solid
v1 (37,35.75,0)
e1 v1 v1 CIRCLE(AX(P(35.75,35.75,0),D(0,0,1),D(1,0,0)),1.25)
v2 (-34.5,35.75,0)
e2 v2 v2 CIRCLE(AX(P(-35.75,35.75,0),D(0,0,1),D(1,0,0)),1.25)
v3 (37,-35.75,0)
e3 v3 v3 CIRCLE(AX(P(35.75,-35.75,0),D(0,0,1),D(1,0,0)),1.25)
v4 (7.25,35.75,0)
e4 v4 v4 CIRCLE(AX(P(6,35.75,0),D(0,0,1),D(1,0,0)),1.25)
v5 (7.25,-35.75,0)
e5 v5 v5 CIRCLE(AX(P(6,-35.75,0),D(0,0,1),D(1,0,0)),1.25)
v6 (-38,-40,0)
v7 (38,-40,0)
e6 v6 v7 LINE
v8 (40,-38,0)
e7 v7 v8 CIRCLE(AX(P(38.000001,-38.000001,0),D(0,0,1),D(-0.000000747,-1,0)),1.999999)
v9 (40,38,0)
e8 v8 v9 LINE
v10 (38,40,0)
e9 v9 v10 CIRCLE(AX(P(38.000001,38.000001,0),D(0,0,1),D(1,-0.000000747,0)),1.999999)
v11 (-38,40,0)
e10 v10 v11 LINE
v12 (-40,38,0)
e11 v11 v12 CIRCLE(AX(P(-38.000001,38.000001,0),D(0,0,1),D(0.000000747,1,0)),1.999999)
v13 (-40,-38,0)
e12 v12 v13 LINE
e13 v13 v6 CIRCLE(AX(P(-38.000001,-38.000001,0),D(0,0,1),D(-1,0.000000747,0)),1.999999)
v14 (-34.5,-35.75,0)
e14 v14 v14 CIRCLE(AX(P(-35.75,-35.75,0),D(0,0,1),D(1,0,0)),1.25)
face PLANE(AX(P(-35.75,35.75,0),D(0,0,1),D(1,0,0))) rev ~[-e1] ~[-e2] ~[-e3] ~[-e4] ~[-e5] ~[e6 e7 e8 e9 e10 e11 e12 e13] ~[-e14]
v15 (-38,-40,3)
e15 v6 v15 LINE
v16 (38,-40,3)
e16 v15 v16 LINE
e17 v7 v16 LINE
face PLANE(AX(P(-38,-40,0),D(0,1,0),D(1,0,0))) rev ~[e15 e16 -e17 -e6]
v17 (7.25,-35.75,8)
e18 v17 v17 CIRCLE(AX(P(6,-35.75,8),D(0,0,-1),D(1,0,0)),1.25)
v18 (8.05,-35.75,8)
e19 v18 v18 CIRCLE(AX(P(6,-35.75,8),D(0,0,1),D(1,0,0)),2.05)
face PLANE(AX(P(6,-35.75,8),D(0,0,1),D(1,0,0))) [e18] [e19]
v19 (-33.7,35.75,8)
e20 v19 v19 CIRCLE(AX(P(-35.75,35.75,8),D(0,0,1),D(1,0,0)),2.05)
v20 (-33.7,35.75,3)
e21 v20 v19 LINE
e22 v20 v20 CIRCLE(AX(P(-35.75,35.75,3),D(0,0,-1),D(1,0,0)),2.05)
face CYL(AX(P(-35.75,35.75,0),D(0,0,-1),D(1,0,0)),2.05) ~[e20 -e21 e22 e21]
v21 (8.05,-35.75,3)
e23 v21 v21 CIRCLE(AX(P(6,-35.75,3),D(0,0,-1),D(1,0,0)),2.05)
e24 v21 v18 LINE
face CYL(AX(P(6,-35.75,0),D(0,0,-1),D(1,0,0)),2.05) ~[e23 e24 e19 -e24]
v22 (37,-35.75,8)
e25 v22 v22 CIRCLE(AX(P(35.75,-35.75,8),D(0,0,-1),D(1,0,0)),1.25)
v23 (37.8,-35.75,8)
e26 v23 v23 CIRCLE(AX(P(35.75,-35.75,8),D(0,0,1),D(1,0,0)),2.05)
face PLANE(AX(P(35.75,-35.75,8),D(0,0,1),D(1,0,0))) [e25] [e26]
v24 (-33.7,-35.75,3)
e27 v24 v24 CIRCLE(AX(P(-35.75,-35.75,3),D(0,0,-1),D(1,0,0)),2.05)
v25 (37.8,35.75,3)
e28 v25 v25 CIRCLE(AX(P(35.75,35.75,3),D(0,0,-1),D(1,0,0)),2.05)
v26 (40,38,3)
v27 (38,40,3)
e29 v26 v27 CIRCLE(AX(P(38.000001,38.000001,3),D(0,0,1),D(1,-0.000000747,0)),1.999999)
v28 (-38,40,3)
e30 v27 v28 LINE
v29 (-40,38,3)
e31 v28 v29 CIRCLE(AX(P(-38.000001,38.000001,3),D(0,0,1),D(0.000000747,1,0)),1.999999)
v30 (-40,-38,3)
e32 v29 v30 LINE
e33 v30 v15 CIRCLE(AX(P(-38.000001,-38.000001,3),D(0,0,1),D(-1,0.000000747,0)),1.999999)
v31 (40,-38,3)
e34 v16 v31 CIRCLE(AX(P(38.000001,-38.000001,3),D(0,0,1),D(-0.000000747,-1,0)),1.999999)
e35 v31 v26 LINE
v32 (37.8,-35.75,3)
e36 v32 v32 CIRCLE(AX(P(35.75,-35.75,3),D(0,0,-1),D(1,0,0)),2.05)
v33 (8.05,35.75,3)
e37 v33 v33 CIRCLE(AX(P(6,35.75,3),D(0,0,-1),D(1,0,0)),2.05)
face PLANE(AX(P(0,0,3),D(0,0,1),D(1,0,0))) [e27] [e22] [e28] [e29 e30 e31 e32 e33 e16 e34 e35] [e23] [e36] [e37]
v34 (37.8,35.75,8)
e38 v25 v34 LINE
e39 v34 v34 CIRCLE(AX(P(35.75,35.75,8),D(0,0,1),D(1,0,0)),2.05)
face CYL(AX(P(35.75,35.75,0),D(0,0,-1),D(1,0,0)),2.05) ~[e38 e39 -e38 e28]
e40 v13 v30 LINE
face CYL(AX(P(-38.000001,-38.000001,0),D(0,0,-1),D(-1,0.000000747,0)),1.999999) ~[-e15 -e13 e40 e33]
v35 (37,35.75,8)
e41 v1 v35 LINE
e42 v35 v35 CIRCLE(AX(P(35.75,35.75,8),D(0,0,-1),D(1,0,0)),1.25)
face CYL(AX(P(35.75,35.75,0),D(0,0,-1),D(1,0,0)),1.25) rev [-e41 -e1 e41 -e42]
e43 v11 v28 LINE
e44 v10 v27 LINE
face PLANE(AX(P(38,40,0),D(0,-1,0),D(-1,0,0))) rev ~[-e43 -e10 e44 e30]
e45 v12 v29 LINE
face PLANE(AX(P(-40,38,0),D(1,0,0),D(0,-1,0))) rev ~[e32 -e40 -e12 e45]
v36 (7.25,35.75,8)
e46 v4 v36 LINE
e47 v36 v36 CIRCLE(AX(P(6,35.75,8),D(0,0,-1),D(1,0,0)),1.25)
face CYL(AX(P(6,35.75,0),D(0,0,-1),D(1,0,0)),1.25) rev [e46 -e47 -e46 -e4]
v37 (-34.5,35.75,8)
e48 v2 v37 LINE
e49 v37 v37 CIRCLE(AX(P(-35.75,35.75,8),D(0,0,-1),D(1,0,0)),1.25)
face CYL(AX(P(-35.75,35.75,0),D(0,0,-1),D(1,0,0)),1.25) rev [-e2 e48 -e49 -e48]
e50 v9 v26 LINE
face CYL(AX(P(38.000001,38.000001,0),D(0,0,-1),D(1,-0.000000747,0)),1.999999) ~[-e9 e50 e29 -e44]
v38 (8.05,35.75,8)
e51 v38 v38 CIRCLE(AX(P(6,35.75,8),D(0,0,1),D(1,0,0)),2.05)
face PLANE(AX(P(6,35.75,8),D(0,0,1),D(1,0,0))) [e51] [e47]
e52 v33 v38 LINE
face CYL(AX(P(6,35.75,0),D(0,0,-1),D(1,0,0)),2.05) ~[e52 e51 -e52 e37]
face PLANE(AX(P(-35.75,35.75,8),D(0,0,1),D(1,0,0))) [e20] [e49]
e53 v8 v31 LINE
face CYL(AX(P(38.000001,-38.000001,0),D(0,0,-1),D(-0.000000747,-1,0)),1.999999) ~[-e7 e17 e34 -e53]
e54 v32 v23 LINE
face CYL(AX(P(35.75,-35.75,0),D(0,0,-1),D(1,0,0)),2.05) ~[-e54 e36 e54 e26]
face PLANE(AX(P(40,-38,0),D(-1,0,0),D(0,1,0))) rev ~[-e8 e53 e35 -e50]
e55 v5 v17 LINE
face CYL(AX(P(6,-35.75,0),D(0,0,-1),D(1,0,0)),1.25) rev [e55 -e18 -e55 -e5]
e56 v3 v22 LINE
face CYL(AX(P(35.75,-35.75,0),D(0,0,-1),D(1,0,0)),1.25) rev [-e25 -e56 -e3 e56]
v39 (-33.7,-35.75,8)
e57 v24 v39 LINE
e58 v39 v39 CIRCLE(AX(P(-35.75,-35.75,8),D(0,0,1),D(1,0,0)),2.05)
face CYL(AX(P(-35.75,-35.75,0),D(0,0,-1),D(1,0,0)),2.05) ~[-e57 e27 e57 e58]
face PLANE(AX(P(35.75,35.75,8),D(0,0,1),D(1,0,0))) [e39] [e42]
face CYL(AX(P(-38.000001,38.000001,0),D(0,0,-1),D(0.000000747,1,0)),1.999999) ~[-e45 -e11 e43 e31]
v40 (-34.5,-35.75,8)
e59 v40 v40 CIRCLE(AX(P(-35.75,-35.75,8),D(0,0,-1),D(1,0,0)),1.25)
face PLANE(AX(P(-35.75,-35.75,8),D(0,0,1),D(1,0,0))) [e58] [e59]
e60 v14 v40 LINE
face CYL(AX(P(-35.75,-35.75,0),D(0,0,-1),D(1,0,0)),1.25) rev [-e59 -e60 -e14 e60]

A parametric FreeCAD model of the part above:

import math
import FreeCAD as App
import Part
import Sketcher
from FreeCAD import Vector
Q = App.Units.Quantity

doc = App.newDocument("Part")
body = doc.addObject("PartDesign::Body", "Body")

sketch1 = body.newObject("Sketcher::SketchObject", "Sketch")
sketch1.AttachmentSupport = (doc.getObject("XY_Plane"), [""])
sketch1.MapMode = "FlatFace"
sketch1.addGeometry(Part.LineSegment(Vector(38, 40, 0), Vector(-38, 40, 0)), False)
sketch1.addGeometry(Part.ArcOfCircle(Part.Circle(Vector(-38.000001, 38.000001, 0), Vector(0, 0, 1), 1.999999), math.radians(89.999957), math.radians(180.000043)), False)
sketch1.addGeometry(Part.LineSegment(Vector(-40, 38, 0), Vector(-40, -38, 0)), False)
sketch1.addGeometry(Part.ArcOfCircle(Part.Circle(Vector(-38.000001, -38.000001, 0), Vector(0, 0, 1), 1.999999), math.radians(179.999957), math.radians(270.000043)), False)
sketch1.addGeometry(Part.LineSegment(Vector(-38, -40, 0), Vector(38, -40, 0)), False)
sketch1.addGeometry(Part.ArcOfCircle(Part.Circle(Vector(38.000001, -38.000001, 0), Vector(0, 0, 1), 1.999999), math.radians(-90.000043), math.radians(0.000043)), False)
sketch1.addGeometry(Part.LineSegment(Vector(40, -38, 0), Vector(40, 38, 0)), False)
sketch1.addGeometry(Part.ArcOfCircle(Part.Circle(Vector(38.000001, 38.000001, 0), Vector(0, 0, 1), 1.999999), math.radians(-0.000043), math.radians(90.000043)), False)
sketch1.addConstraint(Sketcher.Constraint("Tangent", 0, 2, 1, 1))
sketch1.addConstraint(Sketcher.Constraint("Tangent", 1, 2, 2, 1))
sketch1.addConstraint(Sketcher.Constraint("Tangent", 2, 2, 3, 1))
sketch1.addConstraint(Sketcher.Constraint("Tangent", 3, 2, 4, 1))
sketch1.addConstraint(Sketcher.Constraint("Tangent", 4, 2, 5, 1))
sketch1.addConstraint(Sketcher.Constraint("Tangent", 5, 2, 6, 1))
sketch1.addConstraint(Sketcher.Constraint("Tangent", 6, 2, 7, 1))
sketch1.addConstraint(Sketcher.Constraint("Tangent", 7, 2, 0, 1))
sketch1.addConstraint(Sketcher.Constraint("Horizontal", 0))
sketch1.addConstraint(Sketcher.Constraint("Vertical", 2))
sketch1.addConstraint(Sketcher.Constraint("Horizontal", 4))
sketch1.addConstraint(Sketcher.Constraint("Vertical", 6))
sketch1.addConstraint(Sketcher.Constraint("Equal", 1, 3))
sketch1.addConstraint(Sketcher.Constraint("Equal", 3, 5))
sketch1.addConstraint(Sketcher.Constraint("Equal", 5, 7))
sketch1.addConstraint(Sketcher.Constraint("Symmetric", 1, 3, 5, 3, -1, 1))
sketch1.addConstraint(Sketcher.Constraint("Equal", 4, 2))
sketch1.addConstraint(Sketcher.Constraint("Radius", 1, Q("1.999999 mm")))
sketch1.addConstraint(Sketcher.Constraint("DistanceX", 0, 2, 0, 1, Q("76 mm")))
pad1 = body.newObject("PartDesign::Pad", "Pad")
pad1.Profile = sketch1
pad1.Length = 3

sketch2 = body.newObject("Sketcher::SketchObject", "Sketch001")
sketch2.AttachmentSupport = (doc.getObject("XY_Plane"), [""])
sketch2.MapMode = "FlatFace"
sketch2.addGeometry(Part.Circle(Vector(-35.75, 35.75, 0), Vector(0, 0, 1), 2.05), False)
sketch2.addGeometry(Part.Circle(Vector(6, 35.75, 0), Vector(0, 0, 1), 2.05), False)
sketch2.addGeometry(Part.Circle(Vector(35.75, 35.75, 0), Vector(0, 0, 1), 2.05), False)
sketch2.addGeometry(Part.Circle(Vector(35.75, -35.75, 0), Vector(0, 0, 1), 2.05), False)
sketch2.addGeometry(Part.Circle(Vector(6, -35.75, 0), Vector(0, 0, 1), 2.05), False)
sketch2.addGeometry(Part.Circle(Vector(-35.75, -35.75, 0), Vector(0, 0, 1), 2.05), False)
sketch2.addConstraint(Sketcher.Constraint("Equal", 0, 1))
sketch2.addConstraint(Sketcher.Constraint("Equal", 1, 2))
sketch2.addConstraint(Sketcher.Constraint("Equal", 2, 3))
sketch2.addConstraint(Sketcher.Constraint("Equal", 3, 4))
sketch2.addConstraint(Sketcher.Constraint("Equal", 4, 5))
sketch2.addConstraint(Sketcher.Constraint("Symmetric", 0, 3, 3, 3, -1, 1))
sketch2.addConstraint(Sketcher.Constraint("Symmetric", 2, 3, 5, 3, -1, 1))
sketch2.addConstraint(Sketcher.Constraint("Symmetric", 0, 3, 2, 3, -2))
sketch2.addConstraint(Sketcher.Constraint("Symmetric", 1, 3, 4, 3, -1))
sketch2.addConstraint(Sketcher.Constraint("Horizontal", 0, 3, 1, 3))
sketch2.addConstraint(Sketcher.Constraint("Diameter", 0, Q("4.1 mm")))
sketch2.addConstraint(Sketcher.Constraint("DistanceX", -1, 1, 1, 3, Q("6 mm")))
sketch2.addConstraint(Sketcher.Constraint("DistanceX", 0, 3, 2, 3, Q("71.5 mm")))
sketch2.addConstraint(Sketcher.Constraint("DistanceY", 3, 3, 2, 3, Q("71.5 mm")))
pad2 = body.newObject("PartDesign::Pad", "Pad001")
pad2.Profile = sketch2
pad2.Length = 8

sketch3 = body.newObject("Sketcher::SketchObject", "Sketch002")
sketch3.AttachmentSupport = (doc.getObject("XY_Plane"), [""])
sketch3.MapMode = "FlatFace"
sketch3.addGeometry(Part.Circle(Vector(-35.75, 35.75, 0), Vector(0, 0, 1), 1.25), False)
sketch3.addGeometry(Part.Circle(Vector(6, 35.75, 0), Vector(0, 0, 1), 1.25), False)
sketch3.addGeometry(Part.Circle(Vector(35.75, 35.75, 0), Vector(0, 0, 1), 1.25), False)
sketch3.addGeometry(Part.Circle(Vector(35.75, -35.75, 0), Vector(0, 0, 1), 1.25), False)
sketch3.addGeometry(Part.Circle(Vector(6, -35.75, 0), Vector(0, 0, 1), 1.25), False)
sketch3.addGeometry(Part.Circle(Vector(-35.75, -35.75, 0), Vector(0, 0, 1), 1.25), False)
sketch3.addConstraint(Sketcher.Constraint("Equal", 0, 1))
sketch3.addConstraint(Sketcher.Constraint("Equal", 1, 2))
sketch3.addConstraint(Sketcher.Constraint("Equal", 2, 3))
sketch3.addConstraint(Sketcher.Constraint("Equal", 3, 4))
sketch3.addConstraint(Sketcher.Constraint("Equal", 4, 5))
sketch3.addConstraint(Sketcher.Constraint("Symmetric", 0, 3, 3, 3, -1, 1))
sketch3.addConstraint(Sketcher.Constraint("Symmetric", 2, 3, 5, 3, -1, 1))
sketch3.addConstraint(Sketcher.Constraint("Symmetric", 0, 3, 2, 3, -2))
sketch3.addConstraint(Sketcher.Constraint("Symmetric", 1, 3, 4, 3, -1))
sketch3.addConstraint(Sketcher.Constraint("Horizontal", 0, 3, 1, 3))
sketch3.addConstraint(Sketcher.Constraint("Diameter", 0, Q("2.5 mm")))
sketch3.addConstraint(Sketcher.Constraint("DistanceX", -1, 1, 1, 3, Q("6 mm")))
sketch3.addConstraint(Sketcher.Constraint("DistanceX", 0, 3, 2, 3, Q("71.5 mm")))
sketch3.addConstraint(Sketcher.Constraint("DistanceY", 3, 3, 2, 3, Q("71.5 mm")))
pocket1 = body.newObject("PartDesign::Pocket", "Pocket")
pocket1.Profile = sketch3
pocket1.Type = "ThroughAll"
pocket1.Reversed = True

doc.recompute()
